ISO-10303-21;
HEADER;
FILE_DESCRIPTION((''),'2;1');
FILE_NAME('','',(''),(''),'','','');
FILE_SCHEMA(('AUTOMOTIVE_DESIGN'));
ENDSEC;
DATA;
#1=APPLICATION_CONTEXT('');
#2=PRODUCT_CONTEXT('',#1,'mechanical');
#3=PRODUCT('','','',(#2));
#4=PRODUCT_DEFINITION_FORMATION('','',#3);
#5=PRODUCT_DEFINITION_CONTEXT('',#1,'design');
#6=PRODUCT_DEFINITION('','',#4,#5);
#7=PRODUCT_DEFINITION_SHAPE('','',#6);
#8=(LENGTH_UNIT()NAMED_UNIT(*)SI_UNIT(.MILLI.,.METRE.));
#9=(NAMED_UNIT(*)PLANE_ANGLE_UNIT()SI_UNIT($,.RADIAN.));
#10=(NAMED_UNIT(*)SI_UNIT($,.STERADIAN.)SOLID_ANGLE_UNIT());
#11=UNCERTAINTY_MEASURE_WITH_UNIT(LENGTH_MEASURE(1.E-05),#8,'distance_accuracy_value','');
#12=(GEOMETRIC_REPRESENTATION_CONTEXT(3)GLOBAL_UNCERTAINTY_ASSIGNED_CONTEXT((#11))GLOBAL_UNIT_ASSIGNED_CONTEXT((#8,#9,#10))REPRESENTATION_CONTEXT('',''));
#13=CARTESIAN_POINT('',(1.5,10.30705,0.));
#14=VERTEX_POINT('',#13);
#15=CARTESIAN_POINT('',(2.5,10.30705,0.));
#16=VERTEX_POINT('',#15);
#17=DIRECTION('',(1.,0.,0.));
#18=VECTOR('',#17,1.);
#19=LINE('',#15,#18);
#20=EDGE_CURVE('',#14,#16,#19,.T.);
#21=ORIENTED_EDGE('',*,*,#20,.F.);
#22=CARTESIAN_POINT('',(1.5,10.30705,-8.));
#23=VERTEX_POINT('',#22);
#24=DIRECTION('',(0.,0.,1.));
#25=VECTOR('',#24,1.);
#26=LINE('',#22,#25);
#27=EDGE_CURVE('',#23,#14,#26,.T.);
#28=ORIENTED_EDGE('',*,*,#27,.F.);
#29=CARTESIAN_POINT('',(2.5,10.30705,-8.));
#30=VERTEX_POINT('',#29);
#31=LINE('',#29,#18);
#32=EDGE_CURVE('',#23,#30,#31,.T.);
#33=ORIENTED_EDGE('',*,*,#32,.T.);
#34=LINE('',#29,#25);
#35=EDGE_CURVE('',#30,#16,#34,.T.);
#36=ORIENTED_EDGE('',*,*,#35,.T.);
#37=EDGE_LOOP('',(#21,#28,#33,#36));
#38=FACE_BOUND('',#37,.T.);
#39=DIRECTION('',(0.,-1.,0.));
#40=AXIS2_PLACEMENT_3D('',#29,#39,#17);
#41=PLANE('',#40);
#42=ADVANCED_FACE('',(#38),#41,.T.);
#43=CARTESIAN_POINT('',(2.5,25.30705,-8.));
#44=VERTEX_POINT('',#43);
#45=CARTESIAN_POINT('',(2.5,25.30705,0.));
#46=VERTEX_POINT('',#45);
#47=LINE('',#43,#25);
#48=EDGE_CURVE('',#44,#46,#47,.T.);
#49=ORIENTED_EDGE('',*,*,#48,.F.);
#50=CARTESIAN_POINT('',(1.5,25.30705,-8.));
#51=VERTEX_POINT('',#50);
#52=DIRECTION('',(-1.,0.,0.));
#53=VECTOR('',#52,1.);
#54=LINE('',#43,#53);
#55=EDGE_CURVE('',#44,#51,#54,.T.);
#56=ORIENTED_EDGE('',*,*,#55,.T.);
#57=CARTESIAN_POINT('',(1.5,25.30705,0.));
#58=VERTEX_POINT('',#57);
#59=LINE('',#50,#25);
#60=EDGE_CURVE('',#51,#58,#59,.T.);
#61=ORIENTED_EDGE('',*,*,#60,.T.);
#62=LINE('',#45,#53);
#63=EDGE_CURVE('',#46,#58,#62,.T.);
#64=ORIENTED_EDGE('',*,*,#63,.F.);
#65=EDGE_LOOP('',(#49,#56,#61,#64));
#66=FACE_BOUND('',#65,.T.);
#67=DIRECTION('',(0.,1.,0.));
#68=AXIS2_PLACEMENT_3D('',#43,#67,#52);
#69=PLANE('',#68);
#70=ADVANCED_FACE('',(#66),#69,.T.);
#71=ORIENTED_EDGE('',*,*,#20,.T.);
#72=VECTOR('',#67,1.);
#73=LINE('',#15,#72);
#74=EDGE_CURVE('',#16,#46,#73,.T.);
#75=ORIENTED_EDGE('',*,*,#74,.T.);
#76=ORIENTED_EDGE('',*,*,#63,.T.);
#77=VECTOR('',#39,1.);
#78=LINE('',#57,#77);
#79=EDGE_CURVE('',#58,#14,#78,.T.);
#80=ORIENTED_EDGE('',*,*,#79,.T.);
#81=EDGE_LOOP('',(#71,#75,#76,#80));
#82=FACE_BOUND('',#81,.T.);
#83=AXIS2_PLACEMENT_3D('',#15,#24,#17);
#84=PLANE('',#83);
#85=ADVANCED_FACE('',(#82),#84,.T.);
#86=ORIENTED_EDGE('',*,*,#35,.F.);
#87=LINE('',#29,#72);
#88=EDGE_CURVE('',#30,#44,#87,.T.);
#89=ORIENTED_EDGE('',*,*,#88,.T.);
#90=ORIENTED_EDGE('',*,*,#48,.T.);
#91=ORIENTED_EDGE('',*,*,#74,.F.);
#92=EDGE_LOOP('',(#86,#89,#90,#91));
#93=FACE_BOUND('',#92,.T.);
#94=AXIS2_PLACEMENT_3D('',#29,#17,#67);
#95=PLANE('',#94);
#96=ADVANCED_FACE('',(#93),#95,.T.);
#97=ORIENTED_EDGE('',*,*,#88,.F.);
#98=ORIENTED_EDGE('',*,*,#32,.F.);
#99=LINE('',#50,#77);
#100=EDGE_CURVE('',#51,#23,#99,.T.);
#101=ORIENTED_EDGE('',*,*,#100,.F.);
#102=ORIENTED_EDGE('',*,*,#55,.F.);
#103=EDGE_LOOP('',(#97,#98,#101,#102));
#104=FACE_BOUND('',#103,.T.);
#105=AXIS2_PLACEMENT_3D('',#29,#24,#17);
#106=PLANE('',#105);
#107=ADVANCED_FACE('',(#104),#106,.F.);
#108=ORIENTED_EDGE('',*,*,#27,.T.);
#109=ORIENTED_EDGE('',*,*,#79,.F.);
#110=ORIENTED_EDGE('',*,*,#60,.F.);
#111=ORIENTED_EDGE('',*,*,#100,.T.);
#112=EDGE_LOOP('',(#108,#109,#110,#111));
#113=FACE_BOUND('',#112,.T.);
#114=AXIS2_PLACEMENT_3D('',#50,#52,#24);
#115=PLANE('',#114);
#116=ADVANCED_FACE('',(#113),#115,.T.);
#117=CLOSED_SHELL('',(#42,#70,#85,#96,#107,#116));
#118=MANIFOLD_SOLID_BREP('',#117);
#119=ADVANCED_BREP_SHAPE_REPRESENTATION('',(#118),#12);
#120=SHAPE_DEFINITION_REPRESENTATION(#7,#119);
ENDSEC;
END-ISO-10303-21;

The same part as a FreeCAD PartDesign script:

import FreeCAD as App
import Part
import Sketcher

doc = App.newDocument("Part")
body = doc.addObject("PartDesign::Body", "Body")

# Sketch on XY plane
sketch1 = body.newObject("Sketcher::SketchObject", "Sketch")
sketch1.AttachmentSupport = (doc.getObject("XY_Plane"), [""])
sketch1.MapMode = "FlatFace"
sketch1.addGeometry(Part.LineSegment(App.Vector(1.5, 25.3, 0), App.Vector(1.5, 10.3, 0)), False)
sketch1.addGeometry(Part.LineSegment(App.Vector(1.5, 10.3, 0), App.Vector(2.5, 10.3, 0)), False)
sketch1.addGeometry(Part.LineSegment(App.Vector(2.5, 10.3, 0), App.Vector(2.5, 25.3, 0)), False)
sketch1.addGeometry(Part.LineSegment(App.Vector(2.5, 25.3, 0), App.Vector(1.5, 25.3, 0)), False)
sketch1.addConstraint(Sketcher.Constraint("Coincident", 0, 2, 1, 1))
sketch1.addConstraint(Sketcher.Constraint("Coincident", 1, 2, 2, 1))
sketch1.addConstraint(Sketcher.Constraint("Coincident", 2, 2, 3, 1))
sketch1.addConstraint(Sketcher.Constraint("Coincident", 3, 2, 0, 1))
sketch1.addConstraint(Sketcher.Constraint("Vertical", 0))
sketch1.addConstraint(Sketcher.Constraint("Horizontal", 1))
sketch1.addConstraint(Sketcher.Constraint("Vertical", 2))
sketch1.addConstraint(Sketcher.Constraint("Horizontal", 3))
sketch1.addConstraint(Sketcher.Constraint("DistanceX", 1, 1, 1, 2, 1.0))
sketch1.addConstraint(Sketcher.Constraint("DistanceY", 0, 2, 0, 1, 15.0))
sketch1.addConstraint(Sketcher.Constraint("DistanceX", -1, 1, 0, 2, 1.5))
sketch1.addConstraint(Sketcher.Constraint("DistanceY", -1, 1, 0, 2, 10.30705))
pad1 = body.newObject("PartDesign::Pad", "Pad")
pad1.Profile = sketch1
pad1.Length = 8
pad1.Reversed = True

doc.recompute()
